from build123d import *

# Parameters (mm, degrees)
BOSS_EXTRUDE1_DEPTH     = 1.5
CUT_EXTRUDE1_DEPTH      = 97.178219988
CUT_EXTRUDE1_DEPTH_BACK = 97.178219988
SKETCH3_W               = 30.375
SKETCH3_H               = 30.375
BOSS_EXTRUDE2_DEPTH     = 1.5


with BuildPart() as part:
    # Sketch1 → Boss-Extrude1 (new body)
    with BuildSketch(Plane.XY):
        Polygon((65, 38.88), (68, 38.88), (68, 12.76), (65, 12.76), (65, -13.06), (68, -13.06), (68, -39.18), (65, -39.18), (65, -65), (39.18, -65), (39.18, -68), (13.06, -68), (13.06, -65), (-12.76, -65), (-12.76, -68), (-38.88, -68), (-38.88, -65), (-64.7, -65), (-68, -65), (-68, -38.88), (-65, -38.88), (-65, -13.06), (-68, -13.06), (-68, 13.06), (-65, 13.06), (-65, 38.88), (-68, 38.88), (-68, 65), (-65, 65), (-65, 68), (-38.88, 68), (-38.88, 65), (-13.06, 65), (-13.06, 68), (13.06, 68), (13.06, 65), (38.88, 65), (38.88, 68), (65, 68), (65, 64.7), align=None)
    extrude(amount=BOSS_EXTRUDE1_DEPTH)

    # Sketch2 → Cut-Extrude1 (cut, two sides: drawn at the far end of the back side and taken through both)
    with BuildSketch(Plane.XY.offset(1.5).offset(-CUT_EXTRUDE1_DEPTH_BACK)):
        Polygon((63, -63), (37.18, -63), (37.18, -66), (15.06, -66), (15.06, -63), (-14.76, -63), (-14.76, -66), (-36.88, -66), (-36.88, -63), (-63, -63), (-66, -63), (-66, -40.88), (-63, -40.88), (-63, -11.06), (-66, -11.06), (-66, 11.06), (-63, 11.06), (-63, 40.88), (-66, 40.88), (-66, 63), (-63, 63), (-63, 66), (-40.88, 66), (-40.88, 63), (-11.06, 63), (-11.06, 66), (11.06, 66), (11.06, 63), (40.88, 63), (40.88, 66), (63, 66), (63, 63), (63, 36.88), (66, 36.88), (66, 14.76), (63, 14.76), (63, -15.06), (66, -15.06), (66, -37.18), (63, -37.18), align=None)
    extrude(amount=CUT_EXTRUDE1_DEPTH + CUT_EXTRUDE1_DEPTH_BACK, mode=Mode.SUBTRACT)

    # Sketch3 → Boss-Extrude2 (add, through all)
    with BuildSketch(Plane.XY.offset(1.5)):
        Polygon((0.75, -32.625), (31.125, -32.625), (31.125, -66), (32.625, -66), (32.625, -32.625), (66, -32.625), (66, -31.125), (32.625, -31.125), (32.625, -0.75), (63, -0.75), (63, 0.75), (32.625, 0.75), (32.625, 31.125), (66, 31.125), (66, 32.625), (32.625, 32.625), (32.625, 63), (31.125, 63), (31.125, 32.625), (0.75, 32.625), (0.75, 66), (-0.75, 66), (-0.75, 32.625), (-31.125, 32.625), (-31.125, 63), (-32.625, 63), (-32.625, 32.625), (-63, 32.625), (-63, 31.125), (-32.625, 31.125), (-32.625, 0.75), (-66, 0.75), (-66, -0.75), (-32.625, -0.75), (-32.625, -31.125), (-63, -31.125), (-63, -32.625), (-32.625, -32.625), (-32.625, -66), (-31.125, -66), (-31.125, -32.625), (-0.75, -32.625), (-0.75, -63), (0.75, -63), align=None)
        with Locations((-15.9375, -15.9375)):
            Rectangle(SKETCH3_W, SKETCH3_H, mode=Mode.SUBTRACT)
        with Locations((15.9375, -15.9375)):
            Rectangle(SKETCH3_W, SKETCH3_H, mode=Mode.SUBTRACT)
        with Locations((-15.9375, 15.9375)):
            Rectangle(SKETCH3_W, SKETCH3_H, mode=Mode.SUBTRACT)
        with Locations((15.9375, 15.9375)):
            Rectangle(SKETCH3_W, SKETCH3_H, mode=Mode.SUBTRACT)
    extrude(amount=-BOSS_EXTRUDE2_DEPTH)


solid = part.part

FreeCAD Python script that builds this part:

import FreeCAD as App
import Part
import Sketcher
Q = App.Units.Quantity

doc = App.newDocument("Part")
params = doc.addObject("Spreadsheet::Sheet", "Params")
for row, (alias, value) in enumerate([
    ("sketch1_width", "3 mm"),
    ("sketch1_width2", "26.12 mm"),
    ("pad1_length", "1.5 mm"),
    ("sketch2_width", "3 mm"),
    ("sketch2_width2", "25.82 mm"),
    ("sketch2_width3", "22.12 mm"),
    ("sketch3_width", "1.5 mm"),
    ("pad2_length", "1.5 mm"),
], start=1):
    params.set(f"A{row}", alias)
    params.set(f"B{row}", "=" + value)
    params.setAlias(f"B{row}", alias)

body = doc.addObject("PartDesign::Body", "Body")

sketch1 = body.newObject("Sketcher::SketchObject", "Sketch")
sketch1.AttachmentSupport = (doc.getObject("XY_Plane"), [""])
sketch1.MapMode = "FlatFace"
sketch1.addGeometry([
    Part.LineSegment(App.Vector(68, 38.88, 0), App.Vector(65, 38.88, 0)),
    Part.LineSegment(App.Vector(65, 38.88, 0), App.Vector(65, 68, 0)),
    Part.LineSegment(App.Vector(65, 68, 0), App.Vector(38.88, 68, 0)),
    Part.LineSegment(App.Vector(38.88, 68, 0), App.Vector(38.88, 65, 0)),
    Part.LineSegment(App.Vector(38.88, 65, 0), App.Vector(13.06, 65, 0)),
    Part.LineSegment(App.Vector(13.06, 65, 0), App.Vector(13.06, 68, 0)),
    Part.LineSegment(App.Vector(13.06, 68, 0), App.Vector(-13.06, 68, 0)),
    Part.LineSegment(App.Vector(-13.06, 68, 0), App.Vector(-13.06, 65, 0)),
    Part.LineSegment(App.Vector(-13.06, 65, 0), App.Vector(-38.88, 65, 0)),
    Part.LineSegment(App.Vector(-38.88, 65, 0), App.Vector(-38.88, 68, 0)),
    Part.LineSegment(App.Vector(-38.88, 68, 0), App.Vector(-65, 68, 0)),
    Part.LineSegment(App.Vector(-65, 68, 0), App.Vector(-65, 65, 0)),
    Part.LineSegment(App.Vector(-65, 65, 0), App.Vector(-68, 65, 0)),
    Part.LineSegment(App.Vector(-68, 65, 0), App.Vector(-68, 38.88, 0)),
    Part.LineSegment(App.Vector(-68, 38.88, 0), App.Vector(-65, 38.88, 0)),
    Part.LineSegment(App.Vector(-65, 38.88, 0), App.Vector(-65, 13.06, 0)),
    Part.LineSegment(App.Vector(-65, 13.06, 0), App.Vector(-68, 13.06, 0)),
    Part.LineSegment(App.Vector(-68, 13.06, 0), App.Vector(-68, -13.06, 0)),
    Part.LineSegment(App.Vector(-68, -13.06, 0), App.Vector(-65, -13.06, 0)),
    Part.LineSegment(App.Vector(-65, -13.06, 0), App.Vector(-65, -38.88, 0)),
    Part.LineSegment(App.Vector(-65, -38.88, 0), App.Vector(-68, -38.88, 0)),
    Part.LineSegment(App.Vector(-68, -38.88, 0), App.Vector(-68, -65, 0)),
    Part.LineSegment(App.Vector(-68, -65, 0), App.Vector(-38.88, -65, 0)),
    Part.LineSegment(App.Vector(-38.88, -65, 0), App.Vector(-38.88, -68, 0)),
    Part.LineSegment(App.Vector(-38.88, -68, 0), App.Vector(-12.76, -68, 0)),
    Part.LineSegment(App.Vector(-12.76, -68, 0), App.Vector(-12.76, -65, 0)),
    Part.LineSegment(App.Vector(-12.76, -65, 0), App.Vector(13.06, -65, 0)),
    Part.LineSegment(App.Vector(13.06, -65, 0), App.Vector(13.06, -68, 0)),
    Part.LineSegment(App.Vector(13.06, -68, 0), App.Vector(39.18, -68, 0)),
    Part.LineSegment(App.Vector(39.18, -68, 0), App.Vector(39.18, -65, 0)),
    Part.LineSegment(App.Vector(39.18, -65, 0), App.Vector(65, -65, 0)),
    Part.LineSegment(App.Vector(65, -65, 0), App.Vector(65, -39.18, 0)),
    Part.LineSegment(App.Vector(65, -39.18, 0), App.Vector(68, -39.18, 0)),
    Part.LineSegment(App.Vector(68, -39.18, 0), App.Vector(68, -13.06, 0)),
    Part.LineSegment(App.Vector(68, -13.06, 0), App.Vector(65, -13.06, 0)),
    Part.LineSegment(App.Vector(65, -13.06, 0), App.Vector(65, 12.76, 0)),
    Part.LineSegment(App.Vector(65, 12.76, 0), App.Vector(68, 12.76, 0)),
    Part.LineSegment(App.Vector(68, 12.76, 0), App.Vector(68, 38.88, 0)),
], False)
sketch1.addConstraint([
    Sketcher.Constraint("Coincident", 0, 2, 1, 1),
    Sketcher.Constraint("Coincident", 1, 2, 2, 1),
    Sketcher.Constraint("Coincident", 2, 2, 3, 1),
    Sketcher.Constraint("Coincident", 3, 2, 4, 1),
    Sketcher.Constraint("Coincident", 4, 2, 5, 1),
    Sketcher.Constraint("Coincident", 5, 2, 6, 1),
    Sketcher.Constraint("Coincident", 6, 2, 7, 1),
    Sketcher.Constraint("Coincident", 7, 2, 8, 1),
    Sketcher.Constraint("Coincident", 8, 2, 9, 1),
    Sketcher.Constraint("Coincident", 9, 2, 10, 1),
    Sketcher.Constraint("Coincident", 10, 2, 11, 1),
    Sketcher.Constraint("Coincident", 11, 2, 12, 1),
    Sketcher.Constraint("Coincident", 12, 2, 13, 1),
    Sketcher.Constraint("Coincident", 13, 2, 14, 1),
    Sketcher.Constraint("Coincident", 14, 2, 15, 1),
    Sketcher.Constraint("Coincident", 15, 2, 16, 1),
    Sketcher.Constraint("Coincident", 16, 2, 17, 1),
    Sketcher.Constraint("Coincident", 17, 2, 18, 1),
    Sketcher.Constraint("Coincident", 18, 2, 19, 1),
    Sketcher.Constraint("Coincident", 19, 2, 20, 1),
    Sketcher.Constraint("Coincident", 20, 2, 21, 1),
    Sketcher.Constraint("Coincident", 21, 2, 22, 1),
    Sketcher.Constraint("Coincident", 22, 2, 23, 1),
    Sketcher.Constraint("Coincident", 23, 2, 24, 1),
    Sketcher.Constraint("Coincident", 24, 2, 25, 1),
    Sketcher.Constraint("Coincident", 25, 2, 26, 1),
    Sketcher.Constraint("Coincident", 26, 2, 27, 1),
    Sketcher.Constraint("Coincident", 27, 2, 28, 1),
    Sketcher.Constraint("Coincident", 28, 2, 29, 1),
    Sketcher.Constraint("Coincident", 29, 2, 30, 1),
    Sketcher.Constraint("Coincident", 30, 2, 31, 1),
    Sketcher.Constraint("Coincident", 31, 2, 32, 1),
    Sketcher.Constraint("Coincident", 32, 2, 33, 1),
    Sketcher.Constraint("Coincident", 33, 2, 34, 1),
    Sketcher.Constraint("Coincident", 34, 2, 35, 1),
    Sketcher.Constraint("Coincident", 35, 2, 36, 1),
    Sketcher.Constraint("Coincident", 36, 2, 37, 1),
    Sketcher.Constraint("Coincident", 37, 2, 0, 1),
    Sketcher.Constraint("Horizontal", 0),
    Sketcher.Constraint("Vertical", 1),
    Sketcher.Constraint("Horizontal", 2),
    Sketcher.Constraint("Vertical", 3),
    Sketcher.Constraint("Horizontal", 4),
    Sketcher.Constraint("Vertical", 5),
    Sketcher.Constraint("Horizontal", 6),
    Sketcher.Constraint("Vertical", 7),
    Sketcher.Constraint("Horizontal", 8),
    Sketcher.Constraint("Vertical", 9),
    Sketcher.Constraint("Horizontal", 10),
    Sketcher.Constraint("Vertical", 11),
    Sketcher.Constraint("Horizontal", 12),
    Sketcher.Constraint("Vertical", 13),
    Sketcher.Constraint("Horizontal", 14),
    Sketcher.Constraint("Vertical", 15),
    Sketcher.Constraint("Horizontal", 16),
    Sketcher.Constraint("Vertical", 17),
    Sketcher.Constraint("Horizontal", 18),
    Sketcher.Constraint("Vertical", 19),
    Sketcher.Constraint("Horizontal", 20),
    Sketcher.Constraint("Vertical", 21),
    Sketcher.Constraint("Horizontal", 22),
    Sketcher.Constraint("Vertical", 23),
    Sketcher.Constraint("Horizontal", 24),
    Sketcher.Constraint("Vertical", 25),
    Sketcher.Constraint("Horizontal", 26),
    Sketcher.Constraint("Vertical", 27),
    Sketcher.Constraint("Horizontal", 28),
    Sketcher.Constraint("Vertical", 29),
    Sketcher.Constraint("Horizontal", 30),
    Sketcher.Constraint("Vertical", 31),
    Sketcher.Constraint("Horizontal", 32),
    Sketcher.Constraint("Vertical", 33),
    Sketcher.Constraint("Horizontal", 34),
    Sketcher.Constraint("Vertical", 35),
    Sketcher.Constraint("Horizontal", 36),
    Sketcher.Constraint("Vertical", 37),
    Sketcher.Constraint("Symmetric", 0, 2, 19, 2, -1, 1),
    Sketcher.Constraint("Symmetric", 3, 2, 22, 2, -1, 1),
    Sketcher.Constraint("Symmetric", 7, 2, 26, 2, -1, 1),
    Sketcher.Constraint("Symmetric", 11, 2, 30, 2, -1, 1),
    Sketcher.Constraint("Symmetric", 16, 2, 33, 2, -1, 1),
    Sketcher.Constraint("Symmetric", 4, 2, 7, 2, -2),
    Sketcher.Constraint("Symmetric", 2, 2, 9, 2, -2),
    Sketcher.Constraint("Symmetric", 0, 2, 14, 2, -2),
    Sketcher.Constraint("Symmetric", 18, 2, 34, 2, -2),
    Sketcher.Constraint("Symmetric", 12, 2, 21, 2, -1),
    Sketcher.Constraint("Horizontal", 2, 2, 5, 2),
    Sketcher.Constraint("Horizontal", 24, 2, 27, 2),
    Sketcher.Constraint("Vertical", 11, 2, 14, 2),
    Sketcher.Constraint("Vertical", 13, 2, 16, 2),
    Sketcher.Constraint("Vertical", 33, 2, 36, 2),
    Sketcher.Constraint("Equal", 2, 6),
    Sketcher.Constraint("Equal", 10, 24),
    Sketcher.Constraint("Equal", 24, 28),
    Sketcher.Constraint("Equal", 22, 1),
    Sketcher.Constraint("Equal", 36, 3),
    Sketcher.Constraint("Equal", 30, 15),
    Sketcher.Constraint("Equal", 13, 17),
    Sketcher.Constraint("Equal", 11, 23),
    Sketcher.Constraint("Equal", 19, 31),
    Sketcher.Constraint("Equal", 31, 35),
    Sketcher.Constraint("DistanceX", 0, 2, 0, 1, Q("3 mm")),
    Sketcher.Constraint("DistanceX", -1, 1, 0, 2, Q("65 mm")),
    Sketcher.Constraint("DistanceX", 2, 2, 2, 1, Q("26.12 mm")),
])
sketch1.setExpression("Constraints[101]", "Params.sketch1_width")
sketch1.setExpression("Constraints[103]", "Params.sketch1_width2")
pad1 = body.newObject("PartDesign::Pad", "Pad")
pad1.Profile = sketch1
pad1.setExpression("Length", "Params.pad1_length")

sketch2 = body.newObject("Sketcher::SketchObject", "Sketch001")
sketch2.AttachmentSupport = (doc.getObject("XY_Plane"), [""])
sketch2.MapMode = "FlatFace"
sketch2.AttachmentOffset = App.Placement(App.Vector(0, 0, 1.5), App.Rotation())
sketch2.addGeometry([
    Part.LineSegment(App.Vector(37.18, -63, 0), App.Vector(63, -63, 0)),
    Part.LineSegment(App.Vector(63, -63, 0), App.Vector(63, -37.18, 0)),
    Part.LineSegment(App.Vector(63, -37.18, 0), App.Vector(66, -37.18, 0)),
    Part.LineSegment(App.Vector(66, -37.18, 0), App.Vector(66, -15.06, 0)),
    Part.LineSegment(App.Vector(66, -15.06, 0), App.Vector(63, -15.06, 0)),
    Part.LineSegment(App.Vector(63, -15.06, 0), App.Vector(63, 14.76, 0)),
    Part.LineSegment(App.Vector(63, 14.76, 0), App.Vector(66, 14.76, 0)),
    Part.LineSegment(App.Vector(66, 14.76, 0), App.Vector(66, 36.88, 0)),
    Part.LineSegment(App.Vector(66, 36.88, 0), App.Vector(63, 36.88, 0)),
    Part.LineSegment(App.Vector(63, 36.88, 0), App.Vector(63, 66, 0)),
    Part.LineSegment(App.Vector(63, 66, 0), App.Vector(40.88, 66, 0)),
    Part.LineSegment(App.Vector(40.88, 66, 0), App.Vector(40.88, 63, 0)),
    Part.LineSegment(App.Vector(40.88, 63, 0), App.Vector(11.06, 63, 0)),
    Part.LineSegment(App.Vector(11.06, 63, 0), App.Vector(11.06, 66, 0)),
    Part.LineSegment(App.Vector(11.06, 66, 0), App.Vector(-11.06, 66, 0)),
    Part.LineSegment(App.Vector(-11.06, 66, 0), App.Vector(-11.06, 63, 0)),
    Part.LineSegment(App.Vector(-11.06, 63, 0), App.Vector(-40.88, 63, 0)),
    Part.LineSegment(App.Vector(-40.88, 63, 0), App.Vector(-40.88, 66, 0)),
    Part.LineSegment(App.Vector(-40.88, 66, 0), App.Vector(-63, 66, 0)),
    Part.LineSegment(App.Vector(-63, 66, 0), App.Vector(-63, 63, 0)),
    Part.LineSegment(App.Vector(-63, 63, 0), App.Vector(-66, 63, 0)),
    Part.LineSegment(App.Vector(-66, 63, 0), App.Vector(-66, 40.88, 0)),
    Part.LineSegment(App.Vector(-66, 40.88, 0), App.Vector(-63, 40.88, 0)),
    Part.LineSegment(App.Vector(-63, 40.88, 0), App.Vector(-63, 11.06, 0)),
    Part.LineSegment(App.Vector(-63, 11.06, 0), App.Vector(-66, 11.06, 0)),
    Part.LineSegment(App.Vector(-66, 11.06, 0), App.Vector(-66, -11.06, 0)),
    Part.LineSegment(App.Vector(-66, -11.06, 0), App.Vector(-63, -11.06, 0)),
    Part.LineSegment(App.Vector(-63, -11.06, 0), App.Vector(-63, -40.88, 0)),
    Part.LineSegment(App.Vector(-63, -40.88, 0), App.Vector(-66, -40.88, 0)),
    Part.LineSegment(App.Vector(-66, -40.88, 0), App.Vector(-66, -63, 0)),
    Part.LineSegment(App.Vector(-66, -63, 0), App.Vector(-36.88, -63, 0)),
    Part.LineSegment(App.Vector(-36.88, -63, 0), App.Vector(-36.88, -66, 0)),
    Part.LineSegment(App.Vector(-36.88, -66, 0), App.Vector(-14.76, -66, 0)),
    Part.LineSegment(App.Vector(-14.76, -66, 0), App.Vector(-14.76, -63, 0)),
    Part.LineSegment(App.Vector(-14.76, -63, 0), App.Vector(15.06, -63, 0)),
    Part.LineSegment(App.Vector(15.06, -63, 0), App.Vector(15.06, -66, 0)),
    Part.LineSegment(App.Vector(15.06, -66, 0), App.Vector(37.18, -66, 0)),
    Part.LineSegment(App.Vector(37.18, -66, 0), App.Vector(37.18, -63, 0)),
], False)
sketch2.addConstraint([
    Sketcher.Constraint("Coincident", 0, 2, 1, 1),
    Sketcher.Constraint("Coincident", 1, 2, 2, 1),
    Sketcher.Constraint("Coincident", 2, 2, 3, 1),
    Sketcher.Constraint("Coincident", 3, 2, 4, 1),
    Sketcher.Constraint("Coincident", 4, 2, 5, 1),
    Sketcher.Constraint("Coincident", 5, 2, 6, 1),
    Sketcher.Constraint("Coincident", 6, 2, 7, 1),
    Sketcher.Constraint("Coincident", 7, 2, 8, 1),
    Sketcher.Constraint("Coincident", 8, 2, 9, 1),
    Sketcher.Constraint("Coincident", 9, 2, 10, 1),
    Sketcher.Constraint("Coincident", 10, 2, 11, 1),
    Sketcher.Constraint("Coincident", 11, 2, 12, 1),
    Sketcher.Constraint("Coincident", 12, 2, 13, 1),
    Sketcher.Constraint("Coincident", 13, 2, 14, 1),
    Sketcher.Constraint("Coincident", 14, 2, 15, 1),
    Sketcher.Constraint("Coincident", 15, 2, 16, 1),
    Sketcher.Constraint("Coincident", 16, 2, 17, 1),
    Sketcher.Constraint("Coincident", 17, 2, 18, 1),
    Sketcher.Constraint("Coincident", 18, 2, 19, 1),
    Sketcher.Constraint("Coincident", 19, 2, 20, 1),
    Sketcher.Constraint("Coincident", 20, 2, 21, 1),
    Sketcher.Constraint("Coincident", 21, 2, 22, 1),
    Sketcher.Constraint("Coincident", 22, 2, 23, 1),
    Sketcher.Constraint("Coincident", 23, 2, 24, 1),
    Sketcher.Constraint("Coincident", 24, 2, 25, 1),
    Sketcher.Constraint("Coincident", 25, 2, 26, 1),
    Sketcher.Constraint("Coincident", 26, 2, 27, 1),
    Sketcher.Constraint("Coincident", 27, 2, 28, 1),
    Sketcher.Constraint("Coincident", 28, 2, 29, 1),
    Sketcher.Constraint("Coincident", 29, 2, 30, 1),
    Sketcher.Constraint("Coincident", 30, 2, 31, 1),
    Sketcher.Constraint("Coincident", 31, 2, 32, 1),
    Sketcher.Constraint("Coincident", 32, 2, 33, 1),
    Sketcher.Constraint("Coincident", 33, 2, 34, 1),
    Sketcher.Constraint("Coincident", 34, 2, 35, 1),
    Sketcher.Constraint("Coincident", 35, 2, 36, 1),
    Sketcher.Constraint("Coincident", 36, 2, 37, 1),
    Sketcher.Constraint("Coincident", 37, 2, 0, 1),
    Sketcher.Constraint("Horizontal", 0),
    Sketcher.Constraint("Vertical", 1),
    Sketcher.Constraint("Horizontal", 2),
    Sketcher.Constraint("Vertical", 3),
    Sketcher.Constraint("Horizontal", 4),
    Sketcher.Constraint("Vertical", 5),
    Sketcher.Constraint("Horizontal", 6),
    Sketcher.Constraint("Vertical", 7),
    Sketcher.Constraint("Horizontal", 8),
    Sketcher.Constraint("Vertical", 9),
    Sketcher.Constraint("Horizontal", 10),
    Sketcher.Constraint("Vertical", 11),
    Sketcher.Constraint("Horizontal", 12),
    Sketcher.Constraint("Vertical", 13),
    Sketcher.Constraint("Horizontal", 14),
    Sketcher.Constraint("Vertical", 15),
    Sketcher.Constraint("Horizontal", 16),
    Sketcher.Constraint("Vertical", 17),
    Sketcher.Constraint("Horizontal", 18),
    Sketcher.Constraint("Vertical", 19),
    Sketcher.Constraint("Horizontal", 20),
    Sketcher.Constraint("Vertical", 21),
    Sketcher.Constraint("Horizontal", 22),
    Sketcher.Constraint("Vertical", 23),
    Sketcher.Constraint("Horizontal", 24),
    Sketcher.Constraint("Vertical", 25),
    Sketcher.Constraint("Horizontal", 26),
    Sketcher.Constraint("Vertical", 27),
    Sketcher.Constraint("Horizontal", 28),
    Sketcher.Constraint("Vertical", 29),
    Sketcher.Constraint("Horizontal", 30),
    Sketcher.Constraint("Vertical", 31),
    Sketcher.Constraint("Horizontal", 32),
    Sketcher.Constraint("Vertical", 33),
    Sketcher.Constraint("Horizontal", 34),
    Sketcher.Constraint("Vertical", 35),
    Sketcher.Constraint("Horizontal", 36),
    Sketcher.Constraint("Vertical", 37),
    Sketcher.Constraint("Symmetric", 0, 2, 19, 2, -1, 1),
    Sketcher.Constraint("Symmetric", 12, 2, 15, 2, -2),
    Sketcher.Constraint("Symmetric", 10, 2, 17, 2, -2),
    Sketcher.Constraint("Symmetric", 23, 2, 26, 2, -1),
    Sketcher.Constraint("Symmetric", 21, 2, 28, 2, -1),
    Sketcher.Constraint("Horizontal", 10, 2, 13, 2),
    Sketcher.Constraint("Horizontal", 16, 2, 19, 2),
    Sketcher.Constraint("Horizontal", 0, 2, 29, 2),
    Sketcher.Constraint("Horizontal", 30, 2, 33, 2),
    Sketcher.Constraint("Horizontal", 32, 2, 35, 2),
    Sketcher.Constraint("Vertical", 1, 2, 4, 2),
    Sketcher.Constraint("Vertical", 3, 2, 6, 2),
    Sketcher.Constraint("Vertical", 5, 2, 8, 2),
    Sketcher.Constraint("Vertical", 19, 2, 22, 2),
    Sketcher.Constraint("Vertical", 21, 2, 24, 2),
    Sketcher.Constraint("Equal", 10, 14),
    Sketcher.Constraint("Equal", 8, 20),
    Sketcher.Constraint("Equal", 18, 32),
    Sketcher.Constraint("Equal", 16, 34),
    Sketcher.Constraint("Equal", 32, 36),
    Sketcher.Constraint("Equal", 0, 1),
    Sketcher.Constraint("Equal", 36, 3),
    Sketcher.Constraint("Equal", 34, 5),
    Sketcher.Constraint("Equal", 3, 7),
    Sketcher.Constraint("Equal", 30, 9),
    Sketcher.Constraint("Equal", 28, 11),
    Sketcher.Constraint("Equal", 7, 21),
    Sketcher.Constraint("Equal", 5, 23),
    Sketcher.Constraint("Equal", 19, 31),
    Sketcher.Constraint("DistanceX", 2, 1, 2, 2, Q("3 mm")),
    Sketcher.Constraint("DistanceX", -1, 1, 0, 2, Q("63 mm")),
    Sketcher.Constraint("DistanceX", 0, 1, 0, 2, Q("25.82 mm")),
    Sketcher.Constraint("DistanceX", 10, 2, 10, 1, Q("22.12 mm")),
])
sketch2.setExpression("Constraints[105]", "Params.sketch2_width")
sketch2.setExpression("Constraints[107]", "Params.sketch2_width2")
sketch2.setExpression("Constraints[108]", "Params.sketch2_width3")
pocket1 = body.newObject("PartDesign::Pocket", "Pocket")
pocket1.Profile = sketch2
pocket1.Type = "ThroughAll"
pocket1.Midplane = True

sketch3 = body.newObject("Sketcher::SketchObject", "Sketch002")
sketch3.AttachmentSupport = (doc.getObject("XY_Plane"), [""])
sketch3.MapMode = "FlatFace"
sketch3.AttachmentOffset = App.Placement(App.Vector(0, 0, 1.5), App.Rotation())
sketch3.addGeometry([
    Part.LineSegment(App.Vector(0.75, -32.625, 0), App.Vector(31.125, -32.625, 0)),
    Part.LineSegment(App.Vector(31.125, -32.625, 0), App.Vector(31.125, -66, 0)),
    Part.LineSegment(App.Vector(31.125, -66, 0), App.Vector(32.625, -66, 0)),
    Part.LineSegment(App.Vector(32.625, -66, 0), App.Vector(32.625, -32.625, 0)),
    Part.LineSegment(App.Vector(32.625, -32.625, 0), App.Vector(66, -32.625, 0)),
    Part.LineSegment(App.Vector(66, -32.625, 0), App.Vector(66, -31.125, 0)),
    Part.LineSegment(App.Vector(66, -31.125, 0), App.Vector(32.625, -31.125, 0)),
    Part.LineSegment(App.Vector(32.625, -31.125, 0), App.Vector(32.625, -0.75, 0)),
    Part.LineSegment(App.Vector(32.625, -0.75, 0), App.Vector(63, -0.75, 0)),
    Part.LineSegment(App.Vector(63, -0.75, 0), App.Vector(63, 0.75, 0)),
    Part.LineSegment(App.Vector(63, 0.75, 0), App.Vector(32.625, 0.75, 0)),
    Part.LineSegment(App.Vector(32.625, 0.75, 0), App.Vector(32.625, 31.125, 0)),
    Part.LineSegment(App.Vector(32.625, 31.125, 0), App.Vector(66, 31.125, 0)),
    Part.LineSegment(App.Vector(66, 31.125, 0), App.Vector(66, 32.625, 0)),
    Part.LineSegment(App.Vector(66, 32.625, 0), App.Vector(32.625, 32.625, 0)),
    Part.LineSegment(App.Vector(32.625, 32.625, 0), App.Vector(32.625, 63, 0)),
    Part.LineSegment(App.Vector(32.625, 63, 0), App.Vector(31.125, 63, 0)),
    Part.LineSegment(App.Vector(31.125, 63, 0), App.Vector(31.125, 32.625, 0)),
    Part.LineSegment(App.Vector(31.125, 32.625, 0), App.Vector(0.75, 32.625, 0)),
    Part.LineSegment(App.Vector(0.75, 32.625, 0), App.Vector(0.75, 66, 0)),
    Part.LineSegment(App.Vector(0.75, 66, 0), App.Vector(-0.75, 66, 0)),
    Part.LineSegment(App.Vector(-0.75, 66, 0), App.Vector(-0.75, 32.625, 0)),
    Part.LineSegment(App.Vector(-0.75, 32.625, 0), App.Vector(-31.125, 32.625, 0)),
    Part.LineSegment(App.Vector(-31.125, 32.625, 0), App.Vector(-31.125, 63, 0)),
    Part.LineSegment(App.Vector(-31.125, 63, 0), App.Vector(-32.625, 63, 0)),
    Part.LineSegment(App.Vector(-32.625, 63, 0), App.Vector(-32.625, 32.625, 0)),
    Part.LineSegment(App.Vector(-32.625, 32.625, 0), App.Vector(-63, 32.625, 0)),
    Part.LineSegment(App.Vector(-63, 32.625, 0), App.Vector(-63, 31.125, 0)),
    Part.LineSegment(App.Vector(-63, 31.125, 0), App.Vector(-32.625, 31.125, 0)),
    Part.LineSegment(App.Vector(-32.625, 31.125, 0), App.Vector(-32.625, 0.75, 0)),
    Part.LineSegment(App.Vector(-32.625, 0.75, 0), App.Vector(-66, 0.75, 0)),
    Part.LineSegment(App.Vector(-66, 0.75, 0), App.Vector(-66, -0.75, 0)),
    Part.LineSegment(App.Vector(-66, -0.75, 0), App.Vector(-32.625, -0.75, 0)),
    Part.LineSegment(App.Vector(-32.625, -0.75, 0), App.Vector(-32.625, -31.125, 0)),
    Part.LineSegment(App.Vector(-32.625, -31.125, 0), App.Vector(-63, -31.125, 0)),
    Part.LineSegment(App.Vector(-63, -31.125, 0), App.Vector(-63, -32.625, 0)),
    Part.LineSegment(App.Vector(-63, -32.625, 0), App.Vector(-32.625, -32.625, 0)),
    Part.LineSegment(App.Vector(-32.625, -32.625, 0), App.Vector(-32.625, -66, 0)),
    Part.LineSegment(App.Vector(-32.625, -66, 0), App.Vector(-31.125, -66, 0)),
    Part.LineSegment(App.Vector(-31.125, -66, 0), App.Vector(-31.125, -32.625, 0)),
    Part.LineSegment(App.Vector(-31.125, -32.625, 0), App.Vector(-0.75, -32.625, 0)),
    Part.LineSegment(App.Vector(-0.75, -32.625, 0), App.Vector(-0.75, -63, 0)),
    Part.LineSegment(App.Vector(-0.75, -63, 0), App.Vector(0.75, -63, 0)),
    Part.LineSegment(App.Vector(0.75, -63, 0), App.Vector(0.75, -32.625, 0)),
    Part.LineSegment(App.Vector(-0.75, -31.125, 0), App.Vector(-31.125, -31.125, 0)),
    Part.LineSegment(App.Vector(-31.125, -31.125, 0), App.Vector(-31.125, -0.75, 0)),
    Part.LineSegment(App.Vector(-31.125, -0.75, 0), App.Vector(-0.75, -0.75, 0)),
    Part.LineSegment(App.Vector(-0.75, -0.75, 0), App.Vector(-0.75, -31.125, 0)),
    Part.LineSegment(App.Vector(31.125, -31.125, 0), App.Vector(0.75, -31.125, 0)),
    Part.LineSegment(App.Vector(0.75, -31.125, 0), App.Vector(0.75, -0.75, 0)),
    Part.LineSegment(App.Vector(0.75, -0.75, 0), App.Vector(31.125, -0.75, 0)),
    Part.LineSegment(App.Vector(31.125, -0.75, 0), App.Vector(31.125, -31.125, 0)),
    Part.LineSegment(App.Vector(-0.75, 0.75, 0), App.Vector(-31.125, 0.75, 0)),
    Part.LineSegment(App.Vector(-31.125, 0.75, 0), App.Vector(-31.125, 31.125, 0)),
    Part.LineSegment(App.Vector(-31.125, 31.125, 0), App.Vector(-0.75, 31.125, 0)),
    Part.LineSegment(App.Vector(-0.75, 31.125, 0), App.Vector(-0.75, 0.75, 0)),
    Part.LineSegment(App.Vector(31.125, 0.75, 0), App.Vector(0.75, 0.75, 0)),
    Part.LineSegment(App.Vector(0.75, 0.75, 0), App.Vector(0.75, 31.125, 0)),
    Part.LineSegment(App.Vector(0.75, 31.125, 0), App.Vector(31.125, 31.125, 0)),
    Part.LineSegment(App.Vector(31.125, 31.125, 0), App.Vector(31.125, 0.75, 0)),
], False)
sketch3.addConstraint([
    Sketcher.Constraint("Coincident", 0, 2, 1, 1),
    Sketcher.Constraint("Coincident", 1, 2, 2, 1),
    Sketcher.Constraint("Coincident", 2, 2, 3, 1),
    Sketcher.Constraint("Coincident", 3, 2, 4, 1),
    Sketcher.Constraint("Coincident", 4, 2, 5, 1),
    Sketcher.Constraint("Coincident", 5, 2, 6, 1),
    Sketcher.Constraint("Coincident", 6, 2, 7, 1),
    Sketcher.Constraint("Coincident", 7, 2, 8, 1),
    Sketcher.Constraint("Coincident", 8, 2, 9, 1),
    Sketcher.Constraint("Coincident", 9, 2, 10, 1),
    Sketcher.Constraint("Coincident", 10, 2, 11, 1),
    Sketcher.Constraint("Coincident", 11, 2, 12, 1),
    Sketcher.Constraint("Coincident", 12, 2, 13, 1),
    Sketcher.Constraint("Coincident", 13, 2, 14, 1),
    Sketcher.Constraint("Coincident", 14, 2, 15, 1),
    Sketcher.Constraint("Coincident", 15, 2, 16, 1),
    Sketcher.Constraint("Coincident", 16, 2, 17, 1),
    Sketcher.Constraint("Coincident", 17, 2, 18, 1),
    Sketcher.Constraint("Coincident", 18, 2, 19, 1),
    Sketcher.Constraint("Coincident", 19, 2, 20, 1),
    Sketcher.Constraint("Coincident", 20, 2, 21, 1),
    Sketcher.Constraint("Coincident", 21, 2, 22, 1),
    Sketcher.Constraint("Coincident", 22, 2, 23, 1),
    Sketcher.Constraint("Coincident", 23, 2, 24, 1),
    Sketcher.Constraint("Coincident", 24, 2, 25, 1),
    Sketcher.Constraint("Coincident", 25, 2, 26, 1),
    Sketcher.Constraint("Coincident", 26, 2, 27, 1),
    Sketcher.Constraint("Coincident", 27, 2, 28, 1),
    Sketcher.Constraint("Coincident", 28, 2, 29, 1),
    Sketcher.Constraint("Coincident", 29, 2, 30, 1),
    Sketcher.Constraint("Coincident", 30, 2, 31, 1),
    Sketcher.Constraint("Coincident", 31, 2, 32, 1),
    Sketcher.Constraint("Coincident", 32, 2, 33, 1),
    Sketcher.Constraint("Coincident", 33, 2, 34, 1),
    Sketcher.Constraint("Coincident", 34, 2, 35, 1),
    Sketcher.Constraint("Coincident", 35, 2, 36, 1),
    Sketcher.Constraint("Coincident", 36, 2, 37, 1),
    Sketcher.Constraint("Coincident", 37, 2, 38, 1),
    Sketcher.Constraint("Coincident", 38, 2, 39, 1),
    Sketcher.Constraint("Coincident", 39, 2, 40, 1),
    Sketcher.Constraint("Coincident", 40, 2, 41, 1),
    Sketcher.Constraint("Coincident", 41, 2, 42, 1),
    Sketcher.Constraint("Coincident", 42, 2, 43, 1),
    Sketcher.Constraint("Coincident", 43, 2, 0, 1),
    Sketcher.Constraint("Coincident", 44, 2, 45, 1),
    Sketcher.Constraint("Coincident", 45, 2, 46, 1),
    Sketcher.Constraint("Coincident", 46, 2, 47, 1),
    Sketcher.Constraint("Coincident", 47, 2, 44, 1),
    Sketcher.Constraint("Coincident", 48, 2, 49, 1),
    Sketcher.Constraint("Coincident", 49, 2, 50, 1),
    Sketcher.Constraint("Coincident", 50, 2, 51, 1),
    Sketcher.Constraint("Coincident", 51, 2, 48, 1),
    Sketcher.Constraint("Coincident", 52, 2, 53, 1),
    Sketcher.Constraint("Coincident", 53, 2, 54, 1),
    Sketcher.Constraint("Coincident", 54, 2, 55, 1),
    Sketcher.Constraint("Coincident", 55, 2, 52, 1),
    Sketcher.Constraint("Coincident", 56, 2, 57, 1),
    Sketcher.Constraint("Coincident", 57, 2, 58, 1),
    Sketcher.Constraint("Coincident", 58, 2, 59, 1),
    Sketcher.Constraint("Coincident", 59, 2, 56, 1),
    Sketcher.Constraint("Horizontal", 0),
    Sketcher.Constraint("Vertical", 1),
    Sketcher.Constraint("Horizontal", 2),
    Sketcher.Constraint("Vertical", 3),
    Sketcher.Constraint("Horizontal", 4),
    Sketcher.Constraint("Vertical", 5),
    Sketcher.Constraint("Horizontal", 6),
    Sketcher.Constraint("Vertical", 7),
    Sketcher.Constraint("Horizontal", 8),
    Sketcher.Constraint("Vertical", 9),
    Sketcher.Constraint("Horizontal", 10),
    Sketcher.Constraint("Vertical", 11),
    Sketcher.Constraint("Horizontal", 12),
    Sketcher.Constraint("Vertical", 13),
    Sketcher.Constraint("Horizontal", 14),
    Sketcher.Constraint("Vertical", 15),
    Sketcher.Constraint("Horizontal", 16),
    Sketcher.Constraint("Vertical", 17),
    Sketcher.Constraint("Horizontal", 18),
    Sketcher.Constraint("Vertical", 19),
    Sketcher.Constraint("Horizontal", 20),
    Sketcher.Constraint("Vertical", 21),
    Sketcher.Constraint("Horizontal", 22),
    Sketcher.Constraint("Vertical", 23),
    Sketcher.Constraint("Horizontal", 24),
    Sketcher.Constraint("Vertical", 25),
    Sketcher.Constraint("Horizontal", 26),
    Sketcher.Constraint("Vertical", 27),
    Sketcher.Constraint("Horizontal", 28),
    Sketcher.Constraint("Vertical", 29),
    Sketcher.Constraint("Horizontal", 30),
    Sketcher.Constraint("Vertical", 31),
    Sketcher.Constraint("Horizontal", 32),
    Sketcher.Constraint("Vertical", 33),
    Sketcher.Constraint("Horizontal", 34),
    Sketcher.Constraint("Vertical", 35),
    Sketcher.Constraint("Horizontal", 36),
    Sketcher.Constraint("Vertical", 37),
    Sketcher.Constraint("Horizontal", 38),
    Sketcher.Constraint("Vertical", 39),
    Sketcher.Constraint("Horizontal", 40),
    Sketcher.Constraint("Vertical", 41),
    Sketcher.Constraint("Horizontal", 42),
    Sketcher.Constraint("Vertical", 43),
    Sketcher.Constraint("Horizontal", 44),
    Sketcher.Constraint("Vertical", 45),
    Sketcher.Constraint("Horizontal", 46),
    Sketcher.Constraint("Vertical", 47),
    Sketcher.Constraint("Horizontal", 48),
    Sketcher.Constraint("Vertical", 49),
    Sketcher.Constraint("Horizontal", 50),
    Sketcher.Constraint("Vertical", 51),
    Sketcher.Constraint("Horizontal", 52),
    Sketcher.Constraint("Vertical", 53),
    Sketcher.Constraint("Horizontal", 54),
    Sketcher.Constraint("Vertical", 55),
    Sketcher.Constraint("Horizontal", 56),
    Sketcher.Constraint("Vertical", 57),
    Sketcher.Constraint("Horizontal", 58),
    Sketcher.Constraint("Vertical", 59),
    Sketcher.Constraint("Symmetric", 0, 2, 22, 2, -1, 1),
    Sketcher.Constraint("Symmetric", 3, 2, 25, 2, -1, 1),
    Sketcher.Constraint("Symmetric", 6, 2, 28, 2, -1, 1),
    Sketcher.Constraint("Symmetric", 10, 2, 32, 2, -1, 1),
    Sketcher.Constraint("Symmetric", 14, 2, 36, 2, -1, 1),
    Sketcher.Constraint("Symmetric", 17, 2, 39, 2, -1, 1),
    Sketcher.Constraint("Symmetric", 50, 2, 52, 2, -1, 1),
    Sketcher.Constraint("Symmetric", 48, 2, 54, 2, -1, 1),
    Sketcher.Constraint("Symmetric", 46, 2, 56, 2, -1, 1),
    Sketcher.Constraint("Symmetric", 44, 2, 58, 2, -1, 1),
    Sketcher.Constraint("Symmetric", 18, 2, 21, 2, -2),
    Sketcher.Constraint("Symmetric", 16, 2, 23, 2, -2),
    Sketcher.Constraint("Symmetric", 14, 2, 25, 2, -2),
    Sketcher.Constraint("Symmetric", 11, 2, 28, 2, -2),
    Sketcher.Constraint("Symmetric", 47, 2, 48, 2, -2),
    Sketcher.Constraint("Symmetric", 45, 2, 50, 2, -2),
    Sketcher.Constraint("Symmetric", 27, 2, 34, 2, -1),
    Sketcher.Constraint("Horizontal", 0, 2, 3, 2),
    Sketcher.Constraint("Horizontal", 10, 2, 29, 2),
    Sketcher.Constraint("Horizontal", 8, 2, 31, 2),
    Sketcher.Constraint("Horizontal", 2, 2, 37, 2),
    Sketcher.Constraint("Horizontal", 34, 2, 44, 2),
    Sketcher.Constraint("Horizontal", 32, 2, 45, 2),
    Sketcher.Constraint("Vertical", 3, 2, 6, 2),
    Sketcher.Constraint("Vertical", 5, 2, 12, 2),
    Sketcher.Constraint("Vertical", 21, 2, 40, 2),
    Sketcher.Constraint("Vertical", 19, 2, 42, 2),
    Sketcher.Constraint("Vertical", 39, 2, 44, 2),
    Sketcher.Constraint("Vertical", 41, 2, 46, 2),
    Sketcher.Constraint("Equal", 0, 8),
    Sketcher.Constraint("Equal", 16, 20),
    Sketcher.Constraint("Equal", 22, 26),
    Sketcher.Constraint("Equal", 14, 30),
    Sketcher.Constraint("Equal", 32, 1),
    Sketcher.Constraint("Equal", 42, 5),
    Sketcher.Constraint("Equal", 58, 7),
    Sketcher.Constraint("Equal", 5, 9),
    Sketcher.Constraint("Equal", 11, 15),
    Sketcher.Constraint("Equal", 3, 19),
    Sketcher.Constraint("Equal", 33, 41),
    Sketcher.Constraint("DistanceX", 2, 1, 2, 2, Q("1.5 mm")),
    Sketcher.Constraint("DistanceY", 1, 2, -1, 1, Q("66 mm")),
    Sketcher.Constraint("DistanceX", -1, 1, 8, 2, Q("63 mm")),
])
sketch3.setExpression("Constraints[160]", "Params.sketch3_width")
pad2 = body.newObject("PartDesign::Pad", "Pad001")
pad2.Profile = sketch3
pad2.setExpression("Length", "Params.pad2_length")
pad2.Reversed = True

doc.recompute()
